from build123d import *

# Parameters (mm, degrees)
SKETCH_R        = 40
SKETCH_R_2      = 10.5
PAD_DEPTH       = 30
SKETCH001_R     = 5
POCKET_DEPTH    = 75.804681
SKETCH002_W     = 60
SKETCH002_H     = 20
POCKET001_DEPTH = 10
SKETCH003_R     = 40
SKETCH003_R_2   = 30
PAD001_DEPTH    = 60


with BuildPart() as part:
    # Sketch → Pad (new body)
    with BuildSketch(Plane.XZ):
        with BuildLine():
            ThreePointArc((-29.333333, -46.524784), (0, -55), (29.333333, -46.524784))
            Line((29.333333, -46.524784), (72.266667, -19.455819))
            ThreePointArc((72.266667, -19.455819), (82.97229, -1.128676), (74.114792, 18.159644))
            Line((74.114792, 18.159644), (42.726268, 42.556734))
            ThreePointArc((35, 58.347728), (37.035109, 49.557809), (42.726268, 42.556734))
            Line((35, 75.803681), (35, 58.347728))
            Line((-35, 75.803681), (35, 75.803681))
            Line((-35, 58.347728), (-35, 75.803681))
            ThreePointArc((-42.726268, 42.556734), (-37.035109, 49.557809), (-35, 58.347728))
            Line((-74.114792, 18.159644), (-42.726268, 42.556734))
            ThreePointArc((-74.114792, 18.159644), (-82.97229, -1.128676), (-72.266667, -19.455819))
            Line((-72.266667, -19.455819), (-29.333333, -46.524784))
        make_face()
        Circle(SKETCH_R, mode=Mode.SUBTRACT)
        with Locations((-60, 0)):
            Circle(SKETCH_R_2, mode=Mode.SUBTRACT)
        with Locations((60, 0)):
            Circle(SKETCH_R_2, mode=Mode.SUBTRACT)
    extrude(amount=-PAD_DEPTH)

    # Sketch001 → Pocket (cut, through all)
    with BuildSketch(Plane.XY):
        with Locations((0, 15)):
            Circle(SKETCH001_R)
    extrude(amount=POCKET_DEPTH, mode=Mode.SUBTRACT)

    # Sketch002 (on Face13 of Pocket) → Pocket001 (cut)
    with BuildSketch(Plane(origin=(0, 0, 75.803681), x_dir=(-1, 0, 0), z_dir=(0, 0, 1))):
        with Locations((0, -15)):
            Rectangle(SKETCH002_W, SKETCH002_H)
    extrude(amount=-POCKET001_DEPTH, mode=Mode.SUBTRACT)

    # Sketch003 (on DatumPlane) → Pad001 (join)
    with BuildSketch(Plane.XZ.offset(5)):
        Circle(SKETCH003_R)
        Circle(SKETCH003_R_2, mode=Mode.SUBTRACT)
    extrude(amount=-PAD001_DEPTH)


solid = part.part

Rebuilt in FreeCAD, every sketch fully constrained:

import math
import FreeCAD as App
import Part
import Sketcher

V = App.Vector


def add_polygon(sketch, points):
    """Adds a closed chain of lines whose ends are joined by coincident constraints."""
    first, n = sketch.GeometryCount, len(points)
    for a, b in zip(points, points[1:] + points[:1]):
        sketch.addGeometry(Part.LineSegment(App.Vector(*a, 0), App.Vector(*b, 0)), False)
    for i in range(n):
        sketch.addConstraint(Sketcher.Constraint("Coincident", first + i, 2, first + (i + 1) % n, 1))

doc = App.newDocument("Part")
body = doc.addObject("PartDesign::Body", "Body")

# Sketch on XZ plane
sketch1 = body.newObject("Sketcher::SketchObject", "Sketch")
sketch1.AttachmentSupport = (doc.getObject("XZ_Plane"), [""])
sketch1.MapMode = "FlatFace"
sketch1.addGeometry(Part.ArcOfCircle(Part.Circle(V(0, 0, 0), V(0, 0, 1), 55), math.radians(-122), math.radians(-58)), False)
sketch1.addGeometry(Part.LineSegment(V(29, -47, 0), V(72, -19, 0)), False)
sketch1.addGeometry(Part.ArcOfCircle(Part.Circle(V(60, 0, 0), V(0, 0, 1), 23), math.radians(-58), math.radians(52)), False)
sketch1.addGeometry(Part.LineSegment(V(74, 18, 0), V(43, 43, 0)), False)
sketch1.addGeometry(Part.ArcOfCircle(Part.Circle(V(55, 58, 0), V(0, 0, 1), 20), math.radians(-180), math.radians(-128)), False)
sketch1.addGeometry(Part.LineSegment(V(35, 58, 0), V(35, 76, 0)), False)
sketch1.addGeometry(Part.LineSegment(V(35, 76, 0), V(-35, 76, 0)), False)
sketch1.addGeometry(Part.LineSegment(V(-35, 76, 0), V(-35, 58, 0)), False)
sketch1.addGeometry(Part.ArcOfCircle(Part.Circle(V(-55, 58, 0), V(0, 0, 1), 20), math.radians(-52), math.radians(0)), False)
sketch1.addGeometry(Part.LineSegment(V(-43, 43, 0), V(-74, 18, 0)), False)
sketch1.addGeometry(Part.ArcOfCircle(Part.Circle(V(-60, 0, 0), V(0, 0, 1), 23), math.radians(128), math.radians(238)), False)
sketch1.addGeometry(Part.LineSegment(V(-72, -19, 0), V(-29, -47, 0)), False)
sketch1.addGeometry(Part.Circle(V(-60, 0, 0), V(0, 0, 1), 10), False)
sketch1.addGeometry(Part.Circle(V(0, 0, 0), V(0, 0, 1), 40), False)
sketch1.addGeometry(Part.Circle(V(60, 0, 0), V(0, 0, 1), 10), False)
sketch1.addConstraint(Sketcher.Constraint("Tangent", 0, 2, 1, 1))
sketch1.addConstraint(Sketcher.Constraint("Tangent", 1, 2, 2, 1))
sketch1.addConstraint(Sketcher.Constraint("Tangent", 2, 2, 3, 1))
sketch1.addConstraint(Sketcher.Constraint("Tangent", 3, 2, 4, 2))
sketch1.addConstraint(Sketcher.Constraint("Tangent", 4, 1, 5, 1))
sketch1.addConstraint(Sketcher.Constraint("Coincident", 5, 2, 6, 1))
sketch1.addConstraint(Sketcher.Constraint("Coincident", 6, 2, 7, 1))
sketch1.addConstraint(Sketcher.Constraint("Tangent", 7, 2, 8, 2))
sketch1.addConstraint(Sketcher.Constraint("Tangent", 8, 1, 9, 1))
sketch1.addConstraint(Sketcher.Constraint("Tangent", 9, 2, 10, 1))
sketch1.addConstraint(Sketcher.Constraint("Tangent", 10, 2, 11, 1))
sketch1.addConstraint(Sketcher.Constraint("Tangent", 11, 2, 0, 1))
sketch1.addConstraint(Sketcher.Constraint("Vertical", 5))
sketch1.addConstraint(Sketcher.Constraint("Horizontal", 6))
sketch1.addConstraint(Sketcher.Constraint("Vertical", 7))
sketch1.addConstraint(Sketcher.Constraint("Coincident", 0, 3, -1, 1))
sketch1.addConstraint(Sketcher.Constraint("Coincident", 13, 3, -1, 1))
sketch1.addConstraint(Sketcher.Constraint("Coincident", 12, 3, 10, 3))
sketch1.addConstraint(Sketcher.Constraint("Coincident", 14, 3, 2, 3))
sketch1.addConstraint(Sketcher.Constraint("Equal", 4, 8))
sketch1.addConstraint(Sketcher.Constraint("Equal", 2, 10))
sketch1.addConstraint(Sketcher.Constraint("Equal", 12, 14))
sketch1.addConstraint(Sketcher.Constraint("Symmetric", 2, 3, 10, 3, -1, 1))
sketch1.addConstraint(Sketcher.Constraint("Symmetric", 4, 3, 8, 3, -2))
sketch1.addConstraint(Sketcher.Constraint("PointOnObject", 2, 3, -1))
sketch1.addConstraint(Sketcher.Constraint("Diameter", 12, 21.0))
sketch1.addConstraint(Sketcher.Constraint("Diameter", 13, 80.0))
sketch1.addConstraint(Sketcher.Constraint("Radius", 2, 23.0))
sketch1.addConstraint(Sketcher.Constraint("Radius", 4, 20.000002))
sketch1.addConstraint(Sketcher.Constraint("DistanceX", 6, 2, 6, 1, 70.0))
sketch1.addConstraint(Sketcher.Constraint("DistanceX", -1, 1, 2, 3, 60.0))
sketch1.addConstraint(Sketcher.Constraint("Radius", 0, 54.999997))
sketch1.addConstraint(Sketcher.Constraint("DistanceX", 10, 2, 8, 1, 29.540399))
sketch1.addConstraint(Sketcher.Constraint("DistanceY", 5, 1, 5, 2, 17.455953))
pad1 = body.newObject("PartDesign::Pad", "Pad")
pad1.Profile = sketch1
pad1.Length = 30
pad1.Reversed = True

# Sketch on XY plane
sketch2 = body.newObject("Sketcher::SketchObject", "Sketch001")
sketch2.AttachmentSupport = (doc.getObject("XY_Plane"), [""])
sketch2.MapMode = "FlatFace"
sketch2.addGeometry(Part.Circle(V(0, 15, 0), V(0, 0, 1), 5), False)
sketch2.addConstraint(Sketcher.Constraint("PointOnObject", 0, 3, -2))
sketch2.addConstraint(Sketcher.Constraint("Diameter", 0, 10.0))
sketch2.addConstraint(Sketcher.Constraint("DistanceY", -1, 1, 0, 3, 15.0))
pocket1 = body.newObject("PartDesign::Pocket", "Pocket")
pocket1.Profile = sketch2
pocket1.Type = "ThroughAll"
pocket1.Reversed = True

# Sketch on XY plane
sketch3 = body.newObject("Sketcher::SketchObject", "Sketch002")
sketch3.AttachmentSupport = (doc.getObject("XY_Plane"), [""])
sketch3.MapMode = "FlatFace"
sketch3.AttachmentOffset = App.Placement(V(0, 0, 75.803681), App.Rotation())
add_polygon(sketch3, [(30, 5), (30, 25), (-30, 25), (-30, 5)])  # lines 0-3
sketch3.addConstraint(Sketcher.Constraint("Vertical", 0))
sketch3.addConstraint(Sketcher.Constraint("Horizontal", 1))
sketch3.addConstraint(Sketcher.Constraint("Vertical", 2))
sketch3.addConstraint(Sketcher.Constraint("Horizontal", 3))
sketch3.addConstraint(Sketcher.Constraint("DistanceX", 1, 2, 1, 1, 60.0))
sketch3.addConstraint(Sketcher.Constraint("DistanceY", 0, 1, 0, 2, 20.0))
sketch3.addConstraint(Sketcher.Constraint("DistanceX", -1, 1, 0, 2, 30.0))
sketch3.addConstraint(Sketcher.Constraint("DistanceY", -1, 1, 0, 2, 25.0))
pocket2 = body.newObject("PartDesign::Pocket", "Pocket001")
pocket2.Profile = sketch3
pocket2.Length = 10

# Sketch on XZ plane
sketch4 = body.newObject("Sketcher::SketchObject", "Sketch003")
sketch4.AttachmentSupport = (doc.getObject("XZ_Plane"), [""])
sketch4.MapMode = "FlatFace"
sketch4.AttachmentOffset = App.Placement(V(0, 0, 5), App.Rotation())
sketch4.addGeometry(Part.Circle(V(0, 0, 0), V(0, 0, 1), 40), False)
sketch4.addGeometry(Part.Circle(V(0, 0, 0), V(0, 0, 1), 30), False)
sketch4.addConstraint(Sketcher.Constraint("Coincident", 0, 3, -1, 1))
sketch4.addConstraint(Sketcher.Constraint("Coincident", 1, 3, -1, 1))
sketch4.addConstraint(Sketcher.Constraint("Diameter", 0, 80.0))
sketch4.addConstraint(Sketcher.Constraint("Diameter", 1, 60.0))
pad2 = body.newObject("PartDesign::Pad", "Pad001")
pad2.Profile = sketch4
pad2.Length = 60
pad2.Reversed = True

doc.recompute()
